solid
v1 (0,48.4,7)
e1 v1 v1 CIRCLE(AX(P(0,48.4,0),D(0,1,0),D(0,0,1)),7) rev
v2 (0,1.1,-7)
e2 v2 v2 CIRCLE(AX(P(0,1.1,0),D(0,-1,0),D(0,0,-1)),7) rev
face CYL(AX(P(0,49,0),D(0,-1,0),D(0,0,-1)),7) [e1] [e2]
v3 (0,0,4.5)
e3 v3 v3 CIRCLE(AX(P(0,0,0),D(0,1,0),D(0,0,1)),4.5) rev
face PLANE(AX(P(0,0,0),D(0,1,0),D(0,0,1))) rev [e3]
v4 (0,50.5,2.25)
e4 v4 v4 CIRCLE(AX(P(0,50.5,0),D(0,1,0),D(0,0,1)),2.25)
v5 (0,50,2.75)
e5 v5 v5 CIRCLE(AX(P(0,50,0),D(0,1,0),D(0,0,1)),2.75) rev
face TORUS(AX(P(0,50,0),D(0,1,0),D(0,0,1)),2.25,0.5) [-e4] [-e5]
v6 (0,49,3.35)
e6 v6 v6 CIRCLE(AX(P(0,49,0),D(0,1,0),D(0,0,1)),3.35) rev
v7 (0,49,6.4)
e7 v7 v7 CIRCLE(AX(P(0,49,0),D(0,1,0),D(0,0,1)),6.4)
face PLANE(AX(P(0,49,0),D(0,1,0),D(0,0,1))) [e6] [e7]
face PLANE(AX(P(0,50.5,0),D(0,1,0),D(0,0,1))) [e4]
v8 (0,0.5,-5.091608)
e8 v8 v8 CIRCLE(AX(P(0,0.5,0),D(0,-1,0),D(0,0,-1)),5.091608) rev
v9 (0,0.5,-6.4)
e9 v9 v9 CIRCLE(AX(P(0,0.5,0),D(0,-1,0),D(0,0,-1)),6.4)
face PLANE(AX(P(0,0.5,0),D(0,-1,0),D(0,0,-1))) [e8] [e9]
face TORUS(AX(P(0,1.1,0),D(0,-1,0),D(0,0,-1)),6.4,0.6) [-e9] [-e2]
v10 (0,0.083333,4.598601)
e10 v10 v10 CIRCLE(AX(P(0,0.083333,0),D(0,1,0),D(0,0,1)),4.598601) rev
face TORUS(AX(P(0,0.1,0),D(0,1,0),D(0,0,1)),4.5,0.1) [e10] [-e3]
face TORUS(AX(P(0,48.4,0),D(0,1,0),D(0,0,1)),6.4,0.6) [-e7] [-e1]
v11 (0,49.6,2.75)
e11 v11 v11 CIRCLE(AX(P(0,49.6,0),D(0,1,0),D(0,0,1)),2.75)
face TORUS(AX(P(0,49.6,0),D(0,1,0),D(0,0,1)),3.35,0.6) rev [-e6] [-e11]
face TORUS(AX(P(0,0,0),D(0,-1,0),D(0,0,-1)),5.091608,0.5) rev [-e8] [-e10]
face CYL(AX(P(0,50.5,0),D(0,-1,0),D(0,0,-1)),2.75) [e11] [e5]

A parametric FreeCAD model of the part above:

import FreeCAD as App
import Part
import Sketcher
from FreeCAD import Vector
Q = App.Units.Quantity


def edges_at(feature, points):
    """Names of the edges that pass closest to the given points."""
    edges = feature.Shape.Edges
    near = lambda p: min(range(len(edges)), key=lambda i: edges[i].distToShape(Part.Vertex(*p))[0])
    return sorted({f"Edge{near(p) + 1}" for p in points})

doc = App.newDocument("Part")
params = doc.addObject("Spreadsheet::Sheet", "Params")
for row, (alias, value) in enumerate([
    ("sketch1_diameter", "14 mm"),
    ("pad1_length", "49 mm"),
    ("sketch2_diameter", "5.5 mm"),
    ("pad2_length", "1.5 mm"),
    ("fillet_radius", "0.6 mm"),
    ("fillet2_radius", "0.5 mm"),
    ("sketch3_diameter", "14 mm"),
    ("sketch3_diameter2", "9.2 mm"),
    ("pocket1_length", "0.5 mm"),
    ("fillet3_radius", "0.6 mm"),
    ("fillet4_radius", "0.6 mm"),
    ("fillet5_radius", "0.1 mm"),
    ("fillet6_radius", "0.5 mm"),
], start=1):
    params.set(f"A{row}", alias)
    params.set(f"B{row}", "=" + value)
    params.setAlias(f"B{row}", alias)

body = doc.addObject("PartDesign::Body", "Body")

# Sketch on XZ plane
sketch1 = body.newObject("Sketcher::SketchObject", "Sketch")
sketch1.AttachmentSupport = (doc.getObject("XZ_Plane"), [""])
sketch1.MapMode = "FlatFace"
sketch1.addGeometry(Part.Circle(Vector(0, 0, 0), Vector(0, 0, 1), 7), False)
sketch1.addConstraint([
    Sketcher.Constraint("Coincident", 0, 3, -1, 1),
    Sketcher.Constraint("Diameter", 0, Q("14 mm")),
])
sketch1.setExpression("Constraints[1]", "Params.sketch1_diameter")
pad1 = body.newObject("PartDesign::Pad", "Pad")
pad1.Profile = sketch1
pad1.setExpression("Length", "Params.pad1_length")
pad1.Reversed = True

# Sketch on XZ plane
sketch2 = body.newObject("Sketcher::SketchObject", "Sketch001")
sketch2.AttachmentSupport = (doc.getObject("XZ_Plane"), [""])
sketch2.MapMode = "FlatFace"
sketch2.AttachmentOffset = App.Placement(Vector(0, 0, -49), App.Rotation())
sketch2.addGeometry(Part.Circle(Vector(0, 0, 0), Vector(0, 0, 1), 2.8), False)
sketch2.addConstraint([
    Sketcher.Constraint("Coincident", 0, 3, -1, 1),
    Sketcher.Constraint("Diameter", 0, Q("5.5 mm")),
])
sketch2.setExpression("Constraints[1]", "Params.sketch2_diameter")
pad2 = body.newObject("PartDesign::Pad", "Pad001")
pad2.Profile = sketch2
pad2.setExpression("Length", "Params.pad2_length")
pad2.Reversed = True
doc.recompute()

fillet = body.newObject("PartDesign::Fillet", "Fillet")
fillet.Base = (pad2, edges_at(pad2, [(-2.75, 49, 0)]))
fillet.setExpression("Radius", "Params.fillet_radius")
doc.recompute()

fillet2 = body.newObject("PartDesign::Fillet", "Fillet001")
fillet2.Base = (fillet, edges_at(fillet, [(-2.75, 50.5, 0)]))
fillet2.setExpression("Radius", "Params.fillet2_radius")

# Sketch on XZ plane
sketch3 = body.newObject("Sketcher::SketchObject", "Sketch002")
sketch3.AttachmentSupport = (doc.getObject("XZ_Plane"), [""])
sketch3.MapMode = "FlatFace"
sketch3.addGeometry([
    Part.Circle(Vector(0, 0, 0), Vector(0, 0, 1), 7),
    Part.Circle(Vector(0, 0, 0), Vector(0, 0, 1), 4.6),
], False)
sketch3.addConstraint([
    Sketcher.Constraint("Coincident", 0, 3, -1, 1),
    Sketcher.Constraint("Coincident", 1, 3, -1, 1),
    Sketcher.Constraint("Diameter", 0, Q("14 mm")),
    Sketcher.Constraint("Diameter", 1, Q("9.2 mm")),
])
sketch3.setExpression("Constraints[2]", "Params.sketch3_diameter")
sketch3.setExpression("Constraints[3]", "Params.sketch3_diameter2")
pocket1 = body.newObject("PartDesign::Pocket", "Pocket")
pocket1.Profile = sketch3
pocket1.setExpression("Length", "Params.pocket1_length")
doc.recompute()

fillet3 = body.newObject("PartDesign::Fillet", "Fillet002")
fillet3.Base = (pocket1, edges_at(pocket1, [(-7, 0.5, 0)]))
fillet3.setExpression("Radius", "Params.fillet3_radius")
doc.recompute()

fillet4 = body.newObject("PartDesign::Fillet", "Fillet003")
fillet4.Base = (fillet3, edges_at(fillet3, [(-7, 49, 0)]))
fillet4.setExpression("Radius", "Params.fillet4_radius")
doc.recompute()

fillet5 = body.newObject("PartDesign::Fillet", "Fillet004")
fillet5.Base = (fillet4, edges_at(fillet4, [(-4.6, 0, 0)]))
fillet5.setExpression("Radius", "Params.fillet5_radius")
doc.recompute()

fillet6 = body.newObject("PartDesign::Fillet", "Fillet005")
fillet6.Base = (fillet5, edges_at(fillet5, [(-4.6, 0.5, 0)]))
fillet6.setExpression("Radius", "Params.fillet6_radius")

doc.recompute()
